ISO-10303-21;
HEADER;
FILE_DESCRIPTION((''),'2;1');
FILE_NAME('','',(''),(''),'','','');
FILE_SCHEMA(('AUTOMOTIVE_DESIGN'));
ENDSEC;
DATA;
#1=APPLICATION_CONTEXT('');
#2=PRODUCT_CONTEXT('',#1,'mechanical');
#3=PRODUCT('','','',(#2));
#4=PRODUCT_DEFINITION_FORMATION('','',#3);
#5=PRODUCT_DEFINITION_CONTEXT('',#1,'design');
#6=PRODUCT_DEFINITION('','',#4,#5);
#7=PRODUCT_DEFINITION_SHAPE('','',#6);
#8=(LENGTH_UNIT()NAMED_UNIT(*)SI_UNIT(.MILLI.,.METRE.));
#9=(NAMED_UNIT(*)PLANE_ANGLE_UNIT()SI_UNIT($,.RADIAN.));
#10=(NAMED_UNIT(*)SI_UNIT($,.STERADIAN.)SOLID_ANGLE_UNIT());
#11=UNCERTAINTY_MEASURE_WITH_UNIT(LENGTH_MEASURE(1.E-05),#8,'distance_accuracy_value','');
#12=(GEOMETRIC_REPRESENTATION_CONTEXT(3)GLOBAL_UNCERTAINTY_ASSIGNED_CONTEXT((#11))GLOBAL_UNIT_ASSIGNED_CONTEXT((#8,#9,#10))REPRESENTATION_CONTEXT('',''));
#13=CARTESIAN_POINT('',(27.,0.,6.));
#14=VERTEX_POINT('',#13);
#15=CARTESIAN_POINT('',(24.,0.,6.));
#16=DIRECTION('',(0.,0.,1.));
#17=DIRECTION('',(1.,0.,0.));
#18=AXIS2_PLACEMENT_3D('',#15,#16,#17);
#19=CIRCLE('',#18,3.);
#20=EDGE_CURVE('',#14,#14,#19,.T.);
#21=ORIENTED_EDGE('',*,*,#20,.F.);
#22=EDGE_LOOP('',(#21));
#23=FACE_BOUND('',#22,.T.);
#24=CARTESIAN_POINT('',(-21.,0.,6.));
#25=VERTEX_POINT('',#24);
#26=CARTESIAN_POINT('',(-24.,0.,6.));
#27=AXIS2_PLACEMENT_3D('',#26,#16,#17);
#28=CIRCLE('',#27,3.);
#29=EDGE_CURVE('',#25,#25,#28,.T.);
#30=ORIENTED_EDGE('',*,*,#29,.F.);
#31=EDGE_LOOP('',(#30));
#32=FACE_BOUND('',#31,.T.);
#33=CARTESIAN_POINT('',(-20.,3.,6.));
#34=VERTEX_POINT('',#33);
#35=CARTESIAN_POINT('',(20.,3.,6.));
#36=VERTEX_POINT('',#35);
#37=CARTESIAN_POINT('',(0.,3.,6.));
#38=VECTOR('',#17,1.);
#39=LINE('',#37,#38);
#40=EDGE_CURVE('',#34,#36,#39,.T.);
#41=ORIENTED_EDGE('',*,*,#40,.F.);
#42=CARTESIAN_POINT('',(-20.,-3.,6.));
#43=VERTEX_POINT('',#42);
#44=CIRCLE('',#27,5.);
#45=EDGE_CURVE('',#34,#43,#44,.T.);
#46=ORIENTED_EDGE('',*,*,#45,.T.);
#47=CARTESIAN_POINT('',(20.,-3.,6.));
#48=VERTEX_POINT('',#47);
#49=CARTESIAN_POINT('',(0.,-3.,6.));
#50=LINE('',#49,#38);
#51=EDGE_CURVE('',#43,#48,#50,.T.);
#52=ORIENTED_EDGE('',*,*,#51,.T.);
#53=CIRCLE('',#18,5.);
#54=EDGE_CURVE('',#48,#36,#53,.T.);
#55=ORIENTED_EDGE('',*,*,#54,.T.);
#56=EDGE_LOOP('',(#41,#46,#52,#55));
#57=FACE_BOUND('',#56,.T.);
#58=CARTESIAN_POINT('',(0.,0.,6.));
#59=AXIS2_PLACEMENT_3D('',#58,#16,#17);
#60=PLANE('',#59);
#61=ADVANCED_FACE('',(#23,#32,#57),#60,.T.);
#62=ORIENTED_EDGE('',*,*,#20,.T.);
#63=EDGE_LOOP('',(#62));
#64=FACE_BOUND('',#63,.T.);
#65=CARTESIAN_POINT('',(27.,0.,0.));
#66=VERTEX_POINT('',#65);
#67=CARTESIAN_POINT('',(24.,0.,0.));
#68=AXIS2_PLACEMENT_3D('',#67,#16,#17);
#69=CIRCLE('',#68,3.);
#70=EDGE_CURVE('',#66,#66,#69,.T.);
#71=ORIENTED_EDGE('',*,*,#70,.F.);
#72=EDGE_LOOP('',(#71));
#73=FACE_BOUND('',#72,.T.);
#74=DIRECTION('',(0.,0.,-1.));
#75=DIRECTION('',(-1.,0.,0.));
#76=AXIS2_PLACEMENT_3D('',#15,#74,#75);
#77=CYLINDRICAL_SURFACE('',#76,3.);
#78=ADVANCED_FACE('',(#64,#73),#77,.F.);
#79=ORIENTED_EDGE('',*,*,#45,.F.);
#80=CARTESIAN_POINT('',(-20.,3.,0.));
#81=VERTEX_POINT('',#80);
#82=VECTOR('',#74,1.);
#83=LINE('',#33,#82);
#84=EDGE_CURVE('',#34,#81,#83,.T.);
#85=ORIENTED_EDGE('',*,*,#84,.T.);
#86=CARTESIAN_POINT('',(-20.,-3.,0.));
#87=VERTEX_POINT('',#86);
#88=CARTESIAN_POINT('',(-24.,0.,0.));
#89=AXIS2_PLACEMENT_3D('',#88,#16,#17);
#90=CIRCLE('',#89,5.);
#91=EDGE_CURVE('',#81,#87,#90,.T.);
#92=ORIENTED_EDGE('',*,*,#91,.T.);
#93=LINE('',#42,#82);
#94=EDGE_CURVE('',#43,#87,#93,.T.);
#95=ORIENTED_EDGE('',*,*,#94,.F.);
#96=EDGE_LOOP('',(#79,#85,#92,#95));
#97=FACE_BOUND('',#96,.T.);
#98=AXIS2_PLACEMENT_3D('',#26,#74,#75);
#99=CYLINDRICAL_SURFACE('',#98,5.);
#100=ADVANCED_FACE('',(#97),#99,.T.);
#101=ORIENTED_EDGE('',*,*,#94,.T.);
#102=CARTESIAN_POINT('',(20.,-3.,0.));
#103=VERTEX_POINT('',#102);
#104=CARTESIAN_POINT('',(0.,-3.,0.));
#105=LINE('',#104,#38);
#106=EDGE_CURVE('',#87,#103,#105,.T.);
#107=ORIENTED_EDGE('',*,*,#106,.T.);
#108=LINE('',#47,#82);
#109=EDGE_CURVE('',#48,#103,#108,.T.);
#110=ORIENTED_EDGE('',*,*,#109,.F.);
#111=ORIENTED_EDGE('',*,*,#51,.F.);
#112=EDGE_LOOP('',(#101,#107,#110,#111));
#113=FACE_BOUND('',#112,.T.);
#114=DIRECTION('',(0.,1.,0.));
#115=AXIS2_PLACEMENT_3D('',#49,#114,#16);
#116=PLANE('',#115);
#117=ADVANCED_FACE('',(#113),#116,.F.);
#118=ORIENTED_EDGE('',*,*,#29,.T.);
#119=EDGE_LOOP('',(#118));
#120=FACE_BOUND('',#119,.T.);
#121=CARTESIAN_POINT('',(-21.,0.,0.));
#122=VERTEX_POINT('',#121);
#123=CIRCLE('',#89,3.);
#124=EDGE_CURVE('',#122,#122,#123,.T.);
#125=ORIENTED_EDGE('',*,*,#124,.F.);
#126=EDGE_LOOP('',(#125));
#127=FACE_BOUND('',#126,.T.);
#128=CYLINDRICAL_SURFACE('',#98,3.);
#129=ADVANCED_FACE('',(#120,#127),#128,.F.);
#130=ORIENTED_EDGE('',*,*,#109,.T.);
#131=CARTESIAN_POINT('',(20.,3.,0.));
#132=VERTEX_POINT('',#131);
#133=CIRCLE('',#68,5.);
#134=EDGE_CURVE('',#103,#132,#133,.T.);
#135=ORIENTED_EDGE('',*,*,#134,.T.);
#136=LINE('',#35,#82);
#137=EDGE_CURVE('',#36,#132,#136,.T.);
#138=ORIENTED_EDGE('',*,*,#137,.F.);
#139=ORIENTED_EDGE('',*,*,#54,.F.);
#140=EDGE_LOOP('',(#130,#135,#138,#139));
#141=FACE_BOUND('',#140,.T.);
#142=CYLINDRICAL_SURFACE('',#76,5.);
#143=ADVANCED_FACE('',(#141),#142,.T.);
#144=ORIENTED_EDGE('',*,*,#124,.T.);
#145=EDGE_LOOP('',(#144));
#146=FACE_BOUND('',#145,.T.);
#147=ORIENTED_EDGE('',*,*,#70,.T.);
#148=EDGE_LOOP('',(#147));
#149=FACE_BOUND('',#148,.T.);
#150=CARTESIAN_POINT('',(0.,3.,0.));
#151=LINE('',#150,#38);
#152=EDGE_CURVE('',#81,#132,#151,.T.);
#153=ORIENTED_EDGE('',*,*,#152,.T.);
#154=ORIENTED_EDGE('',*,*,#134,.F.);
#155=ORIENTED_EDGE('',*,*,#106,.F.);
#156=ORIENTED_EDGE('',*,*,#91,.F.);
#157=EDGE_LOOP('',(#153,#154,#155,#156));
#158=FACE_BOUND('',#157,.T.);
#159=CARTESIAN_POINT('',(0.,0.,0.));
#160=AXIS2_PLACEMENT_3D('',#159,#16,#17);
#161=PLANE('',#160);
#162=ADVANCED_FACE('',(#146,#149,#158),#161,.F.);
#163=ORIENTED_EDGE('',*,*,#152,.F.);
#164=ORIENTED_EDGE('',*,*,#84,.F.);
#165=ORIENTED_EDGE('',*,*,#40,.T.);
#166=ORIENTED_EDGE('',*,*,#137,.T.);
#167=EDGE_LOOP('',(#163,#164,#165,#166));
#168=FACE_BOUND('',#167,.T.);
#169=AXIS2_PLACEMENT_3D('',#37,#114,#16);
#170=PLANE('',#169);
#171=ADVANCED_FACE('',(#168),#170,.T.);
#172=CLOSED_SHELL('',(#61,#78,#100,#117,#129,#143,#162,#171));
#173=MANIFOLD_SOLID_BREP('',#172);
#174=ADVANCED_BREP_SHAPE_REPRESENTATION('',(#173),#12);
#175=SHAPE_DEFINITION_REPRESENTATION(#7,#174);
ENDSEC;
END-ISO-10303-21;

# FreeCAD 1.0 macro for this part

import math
import FreeCAD as App
import Part
import Sketcher

doc = App.newDocument("Part")
params = doc.addObject("Spreadsheet::Sheet", "Params")
for row, (alias, value) in enumerate([
    ("sketch1_radius", "5 mm"),
    ("sketch1_radius2", "3 mm"),
    ("sketch1_width", "40 mm"),
    ("pad1_length", "6 mm"),
], start=1):
    params.set(f"A{row}", alias)
    params.set(f"B{row}", "=" + value)
    params.setAlias(f"B{row}", alias)

body = doc.addObject("PartDesign::Body", "Body")

sketch1 = body.newObject("Sketcher::SketchObject", "Sketch")
sketch1.AttachmentSupport = (doc.getObject("XY_Plane"), [""])
sketch1.MapMode = "FlatFace"
sketch1.addGeometry([
    Part.LineSegment(App.Vector(20, 3, 0), App.Vector(-20, 3, 0)),
    Part.ArcOfCircle(Part.Circle(App.Vector(-24, 0, 0), App.Vector(0, 0, 1), 5), math.radians(36.869898), math.radians(90)),
    Part.ArcOfCircle(Part.Circle(App.Vector(-24, 0, 0), App.Vector(0, 0, 1), 5), math.radians(90), math.radians(270)),
    Part.ArcOfCircle(Part.Circle(App.Vector(-24, 0, 0), App.Vector(0, 0, 1), 5), math.radians(-90), math.radians(-36.869898)),
    Part.LineSegment(App.Vector(-20, -3, 0), App.Vector(20, -3, 0)),
    Part.ArcOfCircle(Part.Circle(App.Vector(24, 0, 0), App.Vector(0, 0, 1), 5), math.radians(-143.130102), math.radians(-90.000001)),
    Part.ArcOfCircle(Part.Circle(App.Vector(24, 0, 0), App.Vector(0, 0, 1), 5), math.radians(-90.000001), math.radians(0)),
    Part.ArcOfCircle(Part.Circle(App.Vector(24, 0, 0), App.Vector(0, 0, 1), 5), math.radians(0), math.radians(90)),
    Part.ArcOfCircle(Part.Circle(App.Vector(24, 0, 0), App.Vector(0, 0, 1), 5), math.radians(90), math.radians(143.130102)),
    Part.ArcOfCircle(Part.Circle(App.Vector(24, 0, 0), App.Vector(0, 0, 1), 3), math.radians(90), math.radians(270)),
    Part.ArcOfCircle(Part.Circle(App.Vector(24, 0, 0), App.Vector(0, 0, 1), 3), math.radians(0), math.radians(90)),
    Part.ArcOfCircle(Part.Circle(App.Vector(24, 0, 0), App.Vector(0, 0, 1), 3), math.radians(-90), math.radians(0)),
    Part.ArcOfCircle(Part.Circle(App.Vector(-24, 0, 0), App.Vector(0, 0, 1), 3), math.radians(-90), math.radians(0)),
    Part.ArcOfCircle(Part.Circle(App.Vector(-24, 0, 0), App.Vector(0, 0, 1), 3), math.radians(90), math.radians(270)),
    Part.ArcOfCircle(Part.Circle(App.Vector(-24, 0, 0), App.Vector(0, 0, 1), 3), math.radians(0), math.radians(90)),
], False)
sketch1.addConstraint([
    Sketcher.Constraint("Coincident", 0, 2, 1, 1),
    Sketcher.Constraint("Tangent", 1, 2, 2, 1),
    Sketcher.Constraint("Tangent", 2, 2, 3, 1),
    Sketcher.Constraint("Coincident", 3, 2, 4, 1),
    Sketcher.Constraint("Coincident", 4, 2, 5, 1),
    Sketcher.Constraint("Tangent", 5, 2, 6, 1),
    Sketcher.Constraint("Tangent", 6, 2, 7, 1),
    Sketcher.Constraint("Tangent", 7, 2, 8, 1),
    Sketcher.Constraint("Coincident", 8, 2, 0, 1),
    Sketcher.Constraint("Tangent", 9, 1, 10, 2),
    Sketcher.Constraint("Tangent", 10, 1, 11, 2),
    Sketcher.Constraint("Tangent", 11, 1, 9, 2),
    Sketcher.Constraint("Tangent", 12, 1, 13, 2),
    Sketcher.Constraint("Tangent", 13, 1, 14, 2),
    Sketcher.Constraint("Tangent", 14, 1, 12, 2),
    Sketcher.Constraint("Horizontal", 0),
    Sketcher.Constraint("Horizontal", 4),
    Sketcher.Constraint("Coincident", 7, 3, 5, 3),
    Sketcher.Constraint("Coincident", 9, 3, 5, 3),
    Sketcher.Constraint("Coincident", 12, 3, 1, 3),
    Sketcher.Constraint("Equal", 1, 2),
    Sketcher.Constraint("Equal", 2, 3),
    Sketcher.Constraint("Equal", 3, 5),
    Sketcher.Constraint("Equal", 7, 8),
    Sketcher.Constraint("Equal", 11, 12),
    Sketcher.Constraint("Symmetric", 1, 3, 5, 3, -1, 1),
    Sketcher.Constraint("Symmetric", 2, 2, 5, 2, -2),
    Sketcher.Constraint("PointOnObject", 6, 2, -1),
    Sketcher.Constraint("PointOnObject", 10, 1, -1),
    Sketcher.Constraint("PointOnObject", 14, 1, -1),
    Sketcher.Constraint("Horizontal", 8, 2, 9, 1),
    Sketcher.Constraint("Horizontal", 4, 2, 11, 1),
    Sketcher.Constraint("Vertical", 14, 3, 1, 2),
    Sketcher.Constraint("Vertical", 1, 2, 2, 2),
    Sketcher.Constraint("Vertical", 5, 2, 7, 2),
    Sketcher.Constraint("Vertical", 7, 2, 9, 1),
    Sketcher.Constraint("Vertical", 9, 1, 11, 1),
    Sketcher.Constraint("Vertical", 2, 2, 12, 1),
    Sketcher.Constraint("Vertical", 12, 1, 13, 1),
    Sketcher.Constraint("Radius", 1, 5.0),
    Sketcher.Constraint("Radius", 9, 3.0),
    Sketcher.Constraint("DistanceX", 0, 2, 0, 1, 40.0),
])
sketch1.setExpression("Constraints[39]", "Params.sketch1_radius")
sketch1.setExpression("Constraints[40]", "Params.sketch1_radius2")
sketch1.setExpression("Constraints[41]", "Params.sketch1_width")
pad1 = body.newObject("PartDesign::Pad", "Pad")
pad1.Profile = sketch1
pad1.setExpression("Length", "Params.pad1_length")

doc.recompute()
